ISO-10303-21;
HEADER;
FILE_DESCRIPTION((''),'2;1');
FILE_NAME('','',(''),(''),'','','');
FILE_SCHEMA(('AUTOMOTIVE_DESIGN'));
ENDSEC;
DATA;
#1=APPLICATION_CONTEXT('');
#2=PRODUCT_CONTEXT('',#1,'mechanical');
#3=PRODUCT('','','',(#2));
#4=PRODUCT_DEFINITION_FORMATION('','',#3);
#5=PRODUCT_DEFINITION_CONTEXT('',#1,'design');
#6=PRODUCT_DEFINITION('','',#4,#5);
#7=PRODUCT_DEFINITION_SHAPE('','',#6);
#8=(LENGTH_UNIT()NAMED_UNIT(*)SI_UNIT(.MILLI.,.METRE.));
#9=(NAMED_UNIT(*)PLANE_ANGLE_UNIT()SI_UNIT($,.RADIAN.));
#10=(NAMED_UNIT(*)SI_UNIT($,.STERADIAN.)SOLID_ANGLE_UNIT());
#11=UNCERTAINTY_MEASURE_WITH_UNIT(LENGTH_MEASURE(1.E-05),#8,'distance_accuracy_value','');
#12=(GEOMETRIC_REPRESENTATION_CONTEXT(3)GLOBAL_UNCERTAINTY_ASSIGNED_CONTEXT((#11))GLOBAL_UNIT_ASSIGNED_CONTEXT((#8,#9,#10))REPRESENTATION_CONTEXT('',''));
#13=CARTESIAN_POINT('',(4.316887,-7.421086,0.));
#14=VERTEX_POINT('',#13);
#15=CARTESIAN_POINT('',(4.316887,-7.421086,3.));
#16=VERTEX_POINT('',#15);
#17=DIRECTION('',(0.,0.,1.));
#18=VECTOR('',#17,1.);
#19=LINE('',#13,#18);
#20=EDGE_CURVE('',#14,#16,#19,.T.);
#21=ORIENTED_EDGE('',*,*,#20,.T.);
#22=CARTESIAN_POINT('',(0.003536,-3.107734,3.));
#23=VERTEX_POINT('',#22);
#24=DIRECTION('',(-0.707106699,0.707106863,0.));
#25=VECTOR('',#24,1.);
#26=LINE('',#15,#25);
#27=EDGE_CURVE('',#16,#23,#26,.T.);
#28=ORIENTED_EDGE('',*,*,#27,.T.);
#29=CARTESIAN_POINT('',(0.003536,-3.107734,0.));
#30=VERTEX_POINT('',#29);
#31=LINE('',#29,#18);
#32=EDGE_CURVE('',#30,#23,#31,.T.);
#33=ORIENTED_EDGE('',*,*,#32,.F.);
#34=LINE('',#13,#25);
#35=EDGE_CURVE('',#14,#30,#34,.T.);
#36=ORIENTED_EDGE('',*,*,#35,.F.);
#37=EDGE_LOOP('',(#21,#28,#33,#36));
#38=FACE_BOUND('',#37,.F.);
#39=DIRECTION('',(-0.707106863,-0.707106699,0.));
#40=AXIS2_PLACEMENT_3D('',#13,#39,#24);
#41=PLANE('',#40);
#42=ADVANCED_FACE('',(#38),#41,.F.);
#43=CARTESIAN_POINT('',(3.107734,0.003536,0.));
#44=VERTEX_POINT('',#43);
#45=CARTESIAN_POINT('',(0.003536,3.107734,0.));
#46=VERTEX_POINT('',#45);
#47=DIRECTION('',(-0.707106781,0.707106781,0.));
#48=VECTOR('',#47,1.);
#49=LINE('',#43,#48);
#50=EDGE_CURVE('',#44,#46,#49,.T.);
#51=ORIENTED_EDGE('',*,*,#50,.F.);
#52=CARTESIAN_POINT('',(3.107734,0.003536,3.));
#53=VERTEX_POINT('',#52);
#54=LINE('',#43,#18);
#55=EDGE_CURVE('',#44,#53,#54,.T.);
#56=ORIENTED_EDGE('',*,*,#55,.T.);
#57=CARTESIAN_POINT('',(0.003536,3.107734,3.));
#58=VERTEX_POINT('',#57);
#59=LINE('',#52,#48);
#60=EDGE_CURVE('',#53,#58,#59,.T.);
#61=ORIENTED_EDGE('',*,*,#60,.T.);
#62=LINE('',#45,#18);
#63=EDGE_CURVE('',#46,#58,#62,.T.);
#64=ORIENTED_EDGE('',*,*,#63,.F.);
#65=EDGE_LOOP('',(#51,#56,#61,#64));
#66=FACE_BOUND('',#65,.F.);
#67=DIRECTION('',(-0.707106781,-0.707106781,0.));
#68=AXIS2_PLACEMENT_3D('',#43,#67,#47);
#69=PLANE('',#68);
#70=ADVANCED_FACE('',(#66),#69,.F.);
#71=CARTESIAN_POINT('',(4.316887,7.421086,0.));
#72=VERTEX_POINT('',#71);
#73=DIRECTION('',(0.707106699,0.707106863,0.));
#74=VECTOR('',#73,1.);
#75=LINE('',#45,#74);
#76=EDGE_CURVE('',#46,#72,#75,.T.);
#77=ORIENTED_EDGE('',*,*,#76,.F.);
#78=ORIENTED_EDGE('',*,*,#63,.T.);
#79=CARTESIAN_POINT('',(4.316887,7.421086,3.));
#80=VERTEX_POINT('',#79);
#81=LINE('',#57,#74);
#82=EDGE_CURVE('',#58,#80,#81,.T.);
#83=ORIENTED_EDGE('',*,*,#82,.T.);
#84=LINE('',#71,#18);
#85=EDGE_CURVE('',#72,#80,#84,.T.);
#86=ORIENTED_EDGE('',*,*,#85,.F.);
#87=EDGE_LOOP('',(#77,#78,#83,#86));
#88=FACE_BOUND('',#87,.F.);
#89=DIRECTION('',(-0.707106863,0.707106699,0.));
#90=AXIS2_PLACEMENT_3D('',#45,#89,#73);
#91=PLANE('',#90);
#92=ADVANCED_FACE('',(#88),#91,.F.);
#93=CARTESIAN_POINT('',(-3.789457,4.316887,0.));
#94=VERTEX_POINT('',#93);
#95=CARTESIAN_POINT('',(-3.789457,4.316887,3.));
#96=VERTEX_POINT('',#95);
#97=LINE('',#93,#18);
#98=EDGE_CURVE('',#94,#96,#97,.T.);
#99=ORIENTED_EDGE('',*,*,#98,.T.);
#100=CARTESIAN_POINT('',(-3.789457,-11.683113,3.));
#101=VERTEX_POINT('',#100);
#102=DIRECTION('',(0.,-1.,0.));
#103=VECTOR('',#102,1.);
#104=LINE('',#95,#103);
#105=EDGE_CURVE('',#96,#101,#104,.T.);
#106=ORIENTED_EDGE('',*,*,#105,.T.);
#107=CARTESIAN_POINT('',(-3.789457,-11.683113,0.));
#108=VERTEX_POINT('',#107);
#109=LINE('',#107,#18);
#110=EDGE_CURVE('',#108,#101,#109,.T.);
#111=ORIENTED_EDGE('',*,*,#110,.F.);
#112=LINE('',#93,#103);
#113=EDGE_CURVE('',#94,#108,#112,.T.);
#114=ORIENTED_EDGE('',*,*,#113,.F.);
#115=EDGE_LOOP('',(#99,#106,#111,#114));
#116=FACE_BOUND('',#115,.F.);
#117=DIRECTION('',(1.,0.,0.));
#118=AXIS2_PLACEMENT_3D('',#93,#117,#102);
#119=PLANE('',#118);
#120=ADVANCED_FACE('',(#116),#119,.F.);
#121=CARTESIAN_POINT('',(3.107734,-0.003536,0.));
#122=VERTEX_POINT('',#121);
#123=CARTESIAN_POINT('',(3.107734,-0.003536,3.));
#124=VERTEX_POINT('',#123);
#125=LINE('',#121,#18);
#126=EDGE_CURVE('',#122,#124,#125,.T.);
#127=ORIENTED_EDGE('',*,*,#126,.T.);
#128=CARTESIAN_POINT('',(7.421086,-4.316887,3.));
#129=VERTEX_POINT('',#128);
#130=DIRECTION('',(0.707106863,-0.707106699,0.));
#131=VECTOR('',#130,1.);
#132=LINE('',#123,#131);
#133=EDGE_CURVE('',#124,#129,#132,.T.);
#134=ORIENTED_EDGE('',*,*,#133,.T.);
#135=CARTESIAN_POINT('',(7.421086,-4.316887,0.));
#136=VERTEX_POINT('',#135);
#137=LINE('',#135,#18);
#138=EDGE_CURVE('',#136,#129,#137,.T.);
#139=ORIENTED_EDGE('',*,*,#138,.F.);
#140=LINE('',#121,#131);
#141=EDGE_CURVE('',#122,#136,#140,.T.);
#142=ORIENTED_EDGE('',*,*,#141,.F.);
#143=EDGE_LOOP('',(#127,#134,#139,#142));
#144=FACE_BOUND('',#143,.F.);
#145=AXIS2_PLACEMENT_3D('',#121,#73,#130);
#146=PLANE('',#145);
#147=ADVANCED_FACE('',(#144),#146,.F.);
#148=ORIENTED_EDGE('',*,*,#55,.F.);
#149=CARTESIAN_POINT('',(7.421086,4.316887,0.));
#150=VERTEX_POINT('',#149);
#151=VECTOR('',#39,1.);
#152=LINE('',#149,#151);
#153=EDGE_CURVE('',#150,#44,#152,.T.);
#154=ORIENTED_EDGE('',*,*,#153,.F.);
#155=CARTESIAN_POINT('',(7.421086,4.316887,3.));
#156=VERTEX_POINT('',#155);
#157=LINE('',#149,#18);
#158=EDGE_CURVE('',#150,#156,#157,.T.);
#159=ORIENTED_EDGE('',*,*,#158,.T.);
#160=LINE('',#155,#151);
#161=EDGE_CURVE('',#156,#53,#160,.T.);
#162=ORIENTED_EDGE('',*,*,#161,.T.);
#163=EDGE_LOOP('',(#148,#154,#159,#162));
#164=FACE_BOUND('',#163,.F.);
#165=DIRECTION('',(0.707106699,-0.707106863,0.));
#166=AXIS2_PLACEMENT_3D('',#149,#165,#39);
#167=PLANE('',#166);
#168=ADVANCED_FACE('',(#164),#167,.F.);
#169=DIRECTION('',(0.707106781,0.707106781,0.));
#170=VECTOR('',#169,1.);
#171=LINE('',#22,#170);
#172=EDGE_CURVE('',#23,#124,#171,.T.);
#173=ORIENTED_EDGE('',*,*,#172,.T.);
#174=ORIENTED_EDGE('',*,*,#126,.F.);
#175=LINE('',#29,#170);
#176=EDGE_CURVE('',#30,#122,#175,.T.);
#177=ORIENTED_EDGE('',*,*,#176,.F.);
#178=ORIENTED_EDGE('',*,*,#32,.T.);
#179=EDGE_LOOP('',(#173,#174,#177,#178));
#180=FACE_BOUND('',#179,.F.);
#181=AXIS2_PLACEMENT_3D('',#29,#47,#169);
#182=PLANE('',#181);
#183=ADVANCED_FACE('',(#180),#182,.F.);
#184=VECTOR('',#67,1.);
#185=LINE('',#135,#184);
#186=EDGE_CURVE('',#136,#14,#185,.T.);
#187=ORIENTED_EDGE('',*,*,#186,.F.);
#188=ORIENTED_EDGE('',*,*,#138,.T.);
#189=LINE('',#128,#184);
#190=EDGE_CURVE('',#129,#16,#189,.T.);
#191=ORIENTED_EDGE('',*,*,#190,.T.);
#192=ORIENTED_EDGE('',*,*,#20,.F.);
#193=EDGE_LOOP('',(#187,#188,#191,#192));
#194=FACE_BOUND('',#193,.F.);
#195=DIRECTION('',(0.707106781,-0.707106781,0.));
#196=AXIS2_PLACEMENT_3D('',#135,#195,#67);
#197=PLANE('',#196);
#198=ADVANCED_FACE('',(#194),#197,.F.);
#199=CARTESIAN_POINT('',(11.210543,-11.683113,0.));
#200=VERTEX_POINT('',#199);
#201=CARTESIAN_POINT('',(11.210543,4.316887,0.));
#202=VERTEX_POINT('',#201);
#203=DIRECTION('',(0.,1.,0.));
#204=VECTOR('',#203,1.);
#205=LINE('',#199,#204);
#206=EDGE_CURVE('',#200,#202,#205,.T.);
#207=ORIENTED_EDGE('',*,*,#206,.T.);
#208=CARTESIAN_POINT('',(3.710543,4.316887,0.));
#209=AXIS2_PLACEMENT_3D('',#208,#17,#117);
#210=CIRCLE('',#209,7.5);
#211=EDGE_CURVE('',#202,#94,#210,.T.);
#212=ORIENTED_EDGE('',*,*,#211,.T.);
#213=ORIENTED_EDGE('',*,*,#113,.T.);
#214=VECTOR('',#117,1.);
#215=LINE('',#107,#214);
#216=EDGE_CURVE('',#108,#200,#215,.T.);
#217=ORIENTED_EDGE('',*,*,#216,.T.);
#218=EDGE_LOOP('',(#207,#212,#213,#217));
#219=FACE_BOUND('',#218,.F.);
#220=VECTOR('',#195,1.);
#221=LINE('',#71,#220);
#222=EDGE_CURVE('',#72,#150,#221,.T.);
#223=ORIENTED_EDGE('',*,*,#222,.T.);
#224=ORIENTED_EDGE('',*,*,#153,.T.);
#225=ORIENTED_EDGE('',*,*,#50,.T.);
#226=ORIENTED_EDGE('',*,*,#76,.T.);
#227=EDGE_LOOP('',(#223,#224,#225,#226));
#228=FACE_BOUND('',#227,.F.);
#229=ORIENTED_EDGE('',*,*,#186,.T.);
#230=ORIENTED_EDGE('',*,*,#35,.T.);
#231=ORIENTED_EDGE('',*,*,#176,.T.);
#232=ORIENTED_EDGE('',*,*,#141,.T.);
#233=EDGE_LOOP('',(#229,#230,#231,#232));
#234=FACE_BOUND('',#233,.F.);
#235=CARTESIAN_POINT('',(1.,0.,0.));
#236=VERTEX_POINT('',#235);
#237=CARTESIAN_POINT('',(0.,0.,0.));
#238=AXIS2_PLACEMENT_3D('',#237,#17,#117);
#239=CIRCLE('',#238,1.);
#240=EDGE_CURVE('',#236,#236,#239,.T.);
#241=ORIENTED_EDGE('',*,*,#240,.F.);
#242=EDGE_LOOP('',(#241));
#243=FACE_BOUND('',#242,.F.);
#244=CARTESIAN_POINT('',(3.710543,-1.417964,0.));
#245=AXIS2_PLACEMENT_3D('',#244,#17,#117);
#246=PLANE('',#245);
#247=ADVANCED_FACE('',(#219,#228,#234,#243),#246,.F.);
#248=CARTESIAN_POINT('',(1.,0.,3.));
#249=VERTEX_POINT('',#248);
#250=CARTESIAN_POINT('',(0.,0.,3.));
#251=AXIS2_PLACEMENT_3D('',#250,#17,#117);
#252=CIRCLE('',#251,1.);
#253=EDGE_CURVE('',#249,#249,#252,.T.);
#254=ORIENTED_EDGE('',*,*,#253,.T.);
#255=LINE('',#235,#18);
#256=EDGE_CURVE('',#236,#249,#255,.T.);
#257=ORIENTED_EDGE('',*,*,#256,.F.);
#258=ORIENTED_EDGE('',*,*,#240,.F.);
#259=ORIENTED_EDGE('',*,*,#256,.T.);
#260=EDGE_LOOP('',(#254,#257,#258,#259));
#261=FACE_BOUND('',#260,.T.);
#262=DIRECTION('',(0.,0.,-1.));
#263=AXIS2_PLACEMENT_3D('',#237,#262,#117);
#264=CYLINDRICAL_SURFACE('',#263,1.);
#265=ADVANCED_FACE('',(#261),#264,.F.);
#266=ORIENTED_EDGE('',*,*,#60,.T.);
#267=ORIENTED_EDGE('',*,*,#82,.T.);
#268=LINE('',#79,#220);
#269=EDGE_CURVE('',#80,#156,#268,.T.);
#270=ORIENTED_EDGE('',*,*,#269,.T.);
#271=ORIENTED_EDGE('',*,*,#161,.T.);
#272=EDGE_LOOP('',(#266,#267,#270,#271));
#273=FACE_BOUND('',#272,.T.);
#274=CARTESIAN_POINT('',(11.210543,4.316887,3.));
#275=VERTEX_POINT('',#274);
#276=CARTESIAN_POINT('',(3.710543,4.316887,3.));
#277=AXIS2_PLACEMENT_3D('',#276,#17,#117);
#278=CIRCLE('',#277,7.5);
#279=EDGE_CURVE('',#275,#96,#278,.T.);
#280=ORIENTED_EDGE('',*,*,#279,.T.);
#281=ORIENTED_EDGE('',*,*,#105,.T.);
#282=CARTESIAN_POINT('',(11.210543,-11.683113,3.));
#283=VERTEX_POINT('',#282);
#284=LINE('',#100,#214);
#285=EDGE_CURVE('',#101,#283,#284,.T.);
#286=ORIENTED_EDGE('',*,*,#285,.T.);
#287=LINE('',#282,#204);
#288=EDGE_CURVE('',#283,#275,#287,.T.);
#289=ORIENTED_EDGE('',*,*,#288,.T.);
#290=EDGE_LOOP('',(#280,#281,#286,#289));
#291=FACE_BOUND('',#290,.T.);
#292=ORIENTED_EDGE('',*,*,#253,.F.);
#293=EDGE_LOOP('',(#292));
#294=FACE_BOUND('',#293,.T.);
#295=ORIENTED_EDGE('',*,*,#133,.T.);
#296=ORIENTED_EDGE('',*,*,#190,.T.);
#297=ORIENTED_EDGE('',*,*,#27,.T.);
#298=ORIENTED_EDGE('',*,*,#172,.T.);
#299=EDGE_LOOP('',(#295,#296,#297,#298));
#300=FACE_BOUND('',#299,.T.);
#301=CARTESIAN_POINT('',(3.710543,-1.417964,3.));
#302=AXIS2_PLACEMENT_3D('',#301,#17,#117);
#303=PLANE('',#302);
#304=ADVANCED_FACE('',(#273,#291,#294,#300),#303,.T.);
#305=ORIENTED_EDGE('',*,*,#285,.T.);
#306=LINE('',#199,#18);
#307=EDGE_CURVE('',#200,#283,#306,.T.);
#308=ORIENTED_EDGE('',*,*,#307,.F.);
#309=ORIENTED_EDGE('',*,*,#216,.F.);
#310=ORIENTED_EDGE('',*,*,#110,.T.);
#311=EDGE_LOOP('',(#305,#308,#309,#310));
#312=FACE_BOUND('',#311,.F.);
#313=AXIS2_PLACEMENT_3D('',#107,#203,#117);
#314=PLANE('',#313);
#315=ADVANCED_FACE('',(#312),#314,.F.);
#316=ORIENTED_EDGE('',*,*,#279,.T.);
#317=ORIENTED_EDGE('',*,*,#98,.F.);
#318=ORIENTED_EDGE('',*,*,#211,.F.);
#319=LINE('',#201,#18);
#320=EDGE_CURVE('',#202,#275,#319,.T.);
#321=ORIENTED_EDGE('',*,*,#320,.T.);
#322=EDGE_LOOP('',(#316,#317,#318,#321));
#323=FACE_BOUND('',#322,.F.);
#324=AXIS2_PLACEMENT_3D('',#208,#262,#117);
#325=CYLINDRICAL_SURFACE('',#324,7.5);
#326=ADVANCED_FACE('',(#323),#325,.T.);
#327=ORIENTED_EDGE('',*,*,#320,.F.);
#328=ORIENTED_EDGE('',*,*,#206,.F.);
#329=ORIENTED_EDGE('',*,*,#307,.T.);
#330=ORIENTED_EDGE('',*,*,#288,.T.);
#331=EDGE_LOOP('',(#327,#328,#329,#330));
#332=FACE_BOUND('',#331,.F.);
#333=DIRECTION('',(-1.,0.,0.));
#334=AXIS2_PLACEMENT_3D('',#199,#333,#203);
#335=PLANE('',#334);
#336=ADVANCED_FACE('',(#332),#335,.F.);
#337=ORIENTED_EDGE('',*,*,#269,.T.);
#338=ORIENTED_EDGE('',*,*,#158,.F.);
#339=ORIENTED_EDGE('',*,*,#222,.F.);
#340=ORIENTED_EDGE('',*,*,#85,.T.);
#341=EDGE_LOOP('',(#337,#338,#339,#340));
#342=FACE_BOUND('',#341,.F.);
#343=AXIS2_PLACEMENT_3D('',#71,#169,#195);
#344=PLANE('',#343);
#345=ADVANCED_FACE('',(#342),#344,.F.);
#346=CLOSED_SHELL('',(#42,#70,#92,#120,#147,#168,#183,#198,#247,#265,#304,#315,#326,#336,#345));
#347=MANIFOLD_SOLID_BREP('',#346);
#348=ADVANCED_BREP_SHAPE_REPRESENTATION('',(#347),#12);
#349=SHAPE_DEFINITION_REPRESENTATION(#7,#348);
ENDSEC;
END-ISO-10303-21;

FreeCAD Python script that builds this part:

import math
import FreeCAD as App
import Part
import Sketcher


def add_polygon(sketch, points):
    """Adds a closed chain of lines whose ends are joined by coincident constraints."""
    first, n = sketch.GeometryCount, len(points)
    for a, b in zip(points, points[1:] + points[:1]):
        sketch.addGeometry(Part.LineSegment(App.Vector(*a, 0), App.Vector(*b, 0)), False)
    for i in range(n):
        sketch.addConstraint(Sketcher.Constraint("Coincident", first + i, 2, first + (i + 1) % n, 1))

doc = App.newDocument("Part")
body = doc.addObject("PartDesign::Body", "Body")

sketch1 = body.newObject("Sketcher::SketchObject", "Sketch")
sketch1.AttachmentSupport = (doc.getObject("XY_Plane"), [""])
sketch1.MapMode = "FlatFace"
sketch1.addGeometry(Part.LineSegment(App.Vector(11.210543, -11.683113, 0), App.Vector(11.210543, 4.316887, 0)), False)
sketch1.addGeometry(Part.ArcOfCircle(Part.Circle(App.Vector(3.710543, 4.316887, 0), App.Vector(0, 0, 1), 7.5), math.radians(0), math.radians(180)), False)
sketch1.addGeometry(Part.LineSegment(App.Vector(-3.789457, 4.316887, 0), App.Vector(-3.789457, -11.683113, 0)), False)
sketch1.addGeometry(Part.LineSegment(App.Vector(-3.789457, -11.683113, 0), App.Vector(11.210543, -11.683113, 0)), False)
add_polygon(sketch1, [(7.421086, -4.316887), (4.316887, -7.421086), (0.003536, -3.107734), (3.107734, -0.003536)])
sketch1.addGeometry(Part.Circle(App.Vector(0, 0, 0), App.Vector(0, 0, 1), 1), False)
add_polygon(sketch1, [(3.107734, 0.003536), (0.003536, 3.107734), (4.316887, 7.421086), (7.421086, 4.316887)])
sketch1.addConstraint(Sketcher.Constraint("Tangent", 0, 2, 1, 1))
sketch1.addConstraint(Sketcher.Constraint("Tangent", 1, 2, 2, 1))
sketch1.addConstraint(Sketcher.Constraint("Coincident", 2, 2, 3, 1))
sketch1.addConstraint(Sketcher.Constraint("Coincident", 3, 2, 0, 1))
sketch1.addConstraint(Sketcher.Constraint("Vertical", 0))
sketch1.addConstraint(Sketcher.Constraint("Vertical", 2))
sketch1.addConstraint(Sketcher.Constraint("Horizontal", 3))
sketch1.addConstraint(Sketcher.Constraint("Coincident", 8, 3, -1, 1))
sketch1.addConstraint(Sketcher.Constraint("Symmetric", 5, 2, 9, 2, -1))
sketch1.addConstraint(Sketcher.Constraint("Symmetric", 4, 2, 10, 2, -1))
sketch1.addConstraint(Sketcher.Constraint("Symmetric", 7, 2, 11, 2, -1))
sketch1.addConstraint(Sketcher.Constraint("Symmetric", 6, 2, 12, 2, -1))
sketch1.addConstraint(Sketcher.Constraint("Perpendicular", 4, 5))
sketch1.addConstraint(Sketcher.Constraint("Perpendicular", 5, 6))
sketch1.addConstraint(Sketcher.Constraint("Perpendicular", 6, 7))
sketch1.addConstraint(Sketcher.Constraint("Parallel", 7, 9))
sketch1.addConstraint(Sketcher.Constraint("Horizontal", 1, 2, 11, 2))
sketch1.addConstraint(Sketcher.Constraint("Diameter", 8, 2.0))
sketch1.addConstraint(Sketcher.Constraint("Radius", 1, 7.5))
sketch1.addConstraint(Sketcher.Constraint("DistanceY", 0, 1, 0, 2, 16.0))
sketch1.addConstraint(Sketcher.Constraint("Distance", 5, 6.1))
sketch1.addConstraint(Sketcher.Constraint("Distance", 4, 4.39))
sketch1.addConstraint(Sketcher.Constraint("DistanceY", 5, 2, 1, 3, 7.424621))
sketch1.addConstraint(Sketcher.Constraint("DistanceX", 6, 2, 1, 3, 0.602809))
sketch1.addConstraint(Sketcher.Constraint("DistanceX", -1, 1, 1, 3, 3.710543))
pad1 = body.newObject("PartDesign::Pad", "Pad")
pad1.Profile = sketch1
pad1.Length = 3

doc.recompute()
